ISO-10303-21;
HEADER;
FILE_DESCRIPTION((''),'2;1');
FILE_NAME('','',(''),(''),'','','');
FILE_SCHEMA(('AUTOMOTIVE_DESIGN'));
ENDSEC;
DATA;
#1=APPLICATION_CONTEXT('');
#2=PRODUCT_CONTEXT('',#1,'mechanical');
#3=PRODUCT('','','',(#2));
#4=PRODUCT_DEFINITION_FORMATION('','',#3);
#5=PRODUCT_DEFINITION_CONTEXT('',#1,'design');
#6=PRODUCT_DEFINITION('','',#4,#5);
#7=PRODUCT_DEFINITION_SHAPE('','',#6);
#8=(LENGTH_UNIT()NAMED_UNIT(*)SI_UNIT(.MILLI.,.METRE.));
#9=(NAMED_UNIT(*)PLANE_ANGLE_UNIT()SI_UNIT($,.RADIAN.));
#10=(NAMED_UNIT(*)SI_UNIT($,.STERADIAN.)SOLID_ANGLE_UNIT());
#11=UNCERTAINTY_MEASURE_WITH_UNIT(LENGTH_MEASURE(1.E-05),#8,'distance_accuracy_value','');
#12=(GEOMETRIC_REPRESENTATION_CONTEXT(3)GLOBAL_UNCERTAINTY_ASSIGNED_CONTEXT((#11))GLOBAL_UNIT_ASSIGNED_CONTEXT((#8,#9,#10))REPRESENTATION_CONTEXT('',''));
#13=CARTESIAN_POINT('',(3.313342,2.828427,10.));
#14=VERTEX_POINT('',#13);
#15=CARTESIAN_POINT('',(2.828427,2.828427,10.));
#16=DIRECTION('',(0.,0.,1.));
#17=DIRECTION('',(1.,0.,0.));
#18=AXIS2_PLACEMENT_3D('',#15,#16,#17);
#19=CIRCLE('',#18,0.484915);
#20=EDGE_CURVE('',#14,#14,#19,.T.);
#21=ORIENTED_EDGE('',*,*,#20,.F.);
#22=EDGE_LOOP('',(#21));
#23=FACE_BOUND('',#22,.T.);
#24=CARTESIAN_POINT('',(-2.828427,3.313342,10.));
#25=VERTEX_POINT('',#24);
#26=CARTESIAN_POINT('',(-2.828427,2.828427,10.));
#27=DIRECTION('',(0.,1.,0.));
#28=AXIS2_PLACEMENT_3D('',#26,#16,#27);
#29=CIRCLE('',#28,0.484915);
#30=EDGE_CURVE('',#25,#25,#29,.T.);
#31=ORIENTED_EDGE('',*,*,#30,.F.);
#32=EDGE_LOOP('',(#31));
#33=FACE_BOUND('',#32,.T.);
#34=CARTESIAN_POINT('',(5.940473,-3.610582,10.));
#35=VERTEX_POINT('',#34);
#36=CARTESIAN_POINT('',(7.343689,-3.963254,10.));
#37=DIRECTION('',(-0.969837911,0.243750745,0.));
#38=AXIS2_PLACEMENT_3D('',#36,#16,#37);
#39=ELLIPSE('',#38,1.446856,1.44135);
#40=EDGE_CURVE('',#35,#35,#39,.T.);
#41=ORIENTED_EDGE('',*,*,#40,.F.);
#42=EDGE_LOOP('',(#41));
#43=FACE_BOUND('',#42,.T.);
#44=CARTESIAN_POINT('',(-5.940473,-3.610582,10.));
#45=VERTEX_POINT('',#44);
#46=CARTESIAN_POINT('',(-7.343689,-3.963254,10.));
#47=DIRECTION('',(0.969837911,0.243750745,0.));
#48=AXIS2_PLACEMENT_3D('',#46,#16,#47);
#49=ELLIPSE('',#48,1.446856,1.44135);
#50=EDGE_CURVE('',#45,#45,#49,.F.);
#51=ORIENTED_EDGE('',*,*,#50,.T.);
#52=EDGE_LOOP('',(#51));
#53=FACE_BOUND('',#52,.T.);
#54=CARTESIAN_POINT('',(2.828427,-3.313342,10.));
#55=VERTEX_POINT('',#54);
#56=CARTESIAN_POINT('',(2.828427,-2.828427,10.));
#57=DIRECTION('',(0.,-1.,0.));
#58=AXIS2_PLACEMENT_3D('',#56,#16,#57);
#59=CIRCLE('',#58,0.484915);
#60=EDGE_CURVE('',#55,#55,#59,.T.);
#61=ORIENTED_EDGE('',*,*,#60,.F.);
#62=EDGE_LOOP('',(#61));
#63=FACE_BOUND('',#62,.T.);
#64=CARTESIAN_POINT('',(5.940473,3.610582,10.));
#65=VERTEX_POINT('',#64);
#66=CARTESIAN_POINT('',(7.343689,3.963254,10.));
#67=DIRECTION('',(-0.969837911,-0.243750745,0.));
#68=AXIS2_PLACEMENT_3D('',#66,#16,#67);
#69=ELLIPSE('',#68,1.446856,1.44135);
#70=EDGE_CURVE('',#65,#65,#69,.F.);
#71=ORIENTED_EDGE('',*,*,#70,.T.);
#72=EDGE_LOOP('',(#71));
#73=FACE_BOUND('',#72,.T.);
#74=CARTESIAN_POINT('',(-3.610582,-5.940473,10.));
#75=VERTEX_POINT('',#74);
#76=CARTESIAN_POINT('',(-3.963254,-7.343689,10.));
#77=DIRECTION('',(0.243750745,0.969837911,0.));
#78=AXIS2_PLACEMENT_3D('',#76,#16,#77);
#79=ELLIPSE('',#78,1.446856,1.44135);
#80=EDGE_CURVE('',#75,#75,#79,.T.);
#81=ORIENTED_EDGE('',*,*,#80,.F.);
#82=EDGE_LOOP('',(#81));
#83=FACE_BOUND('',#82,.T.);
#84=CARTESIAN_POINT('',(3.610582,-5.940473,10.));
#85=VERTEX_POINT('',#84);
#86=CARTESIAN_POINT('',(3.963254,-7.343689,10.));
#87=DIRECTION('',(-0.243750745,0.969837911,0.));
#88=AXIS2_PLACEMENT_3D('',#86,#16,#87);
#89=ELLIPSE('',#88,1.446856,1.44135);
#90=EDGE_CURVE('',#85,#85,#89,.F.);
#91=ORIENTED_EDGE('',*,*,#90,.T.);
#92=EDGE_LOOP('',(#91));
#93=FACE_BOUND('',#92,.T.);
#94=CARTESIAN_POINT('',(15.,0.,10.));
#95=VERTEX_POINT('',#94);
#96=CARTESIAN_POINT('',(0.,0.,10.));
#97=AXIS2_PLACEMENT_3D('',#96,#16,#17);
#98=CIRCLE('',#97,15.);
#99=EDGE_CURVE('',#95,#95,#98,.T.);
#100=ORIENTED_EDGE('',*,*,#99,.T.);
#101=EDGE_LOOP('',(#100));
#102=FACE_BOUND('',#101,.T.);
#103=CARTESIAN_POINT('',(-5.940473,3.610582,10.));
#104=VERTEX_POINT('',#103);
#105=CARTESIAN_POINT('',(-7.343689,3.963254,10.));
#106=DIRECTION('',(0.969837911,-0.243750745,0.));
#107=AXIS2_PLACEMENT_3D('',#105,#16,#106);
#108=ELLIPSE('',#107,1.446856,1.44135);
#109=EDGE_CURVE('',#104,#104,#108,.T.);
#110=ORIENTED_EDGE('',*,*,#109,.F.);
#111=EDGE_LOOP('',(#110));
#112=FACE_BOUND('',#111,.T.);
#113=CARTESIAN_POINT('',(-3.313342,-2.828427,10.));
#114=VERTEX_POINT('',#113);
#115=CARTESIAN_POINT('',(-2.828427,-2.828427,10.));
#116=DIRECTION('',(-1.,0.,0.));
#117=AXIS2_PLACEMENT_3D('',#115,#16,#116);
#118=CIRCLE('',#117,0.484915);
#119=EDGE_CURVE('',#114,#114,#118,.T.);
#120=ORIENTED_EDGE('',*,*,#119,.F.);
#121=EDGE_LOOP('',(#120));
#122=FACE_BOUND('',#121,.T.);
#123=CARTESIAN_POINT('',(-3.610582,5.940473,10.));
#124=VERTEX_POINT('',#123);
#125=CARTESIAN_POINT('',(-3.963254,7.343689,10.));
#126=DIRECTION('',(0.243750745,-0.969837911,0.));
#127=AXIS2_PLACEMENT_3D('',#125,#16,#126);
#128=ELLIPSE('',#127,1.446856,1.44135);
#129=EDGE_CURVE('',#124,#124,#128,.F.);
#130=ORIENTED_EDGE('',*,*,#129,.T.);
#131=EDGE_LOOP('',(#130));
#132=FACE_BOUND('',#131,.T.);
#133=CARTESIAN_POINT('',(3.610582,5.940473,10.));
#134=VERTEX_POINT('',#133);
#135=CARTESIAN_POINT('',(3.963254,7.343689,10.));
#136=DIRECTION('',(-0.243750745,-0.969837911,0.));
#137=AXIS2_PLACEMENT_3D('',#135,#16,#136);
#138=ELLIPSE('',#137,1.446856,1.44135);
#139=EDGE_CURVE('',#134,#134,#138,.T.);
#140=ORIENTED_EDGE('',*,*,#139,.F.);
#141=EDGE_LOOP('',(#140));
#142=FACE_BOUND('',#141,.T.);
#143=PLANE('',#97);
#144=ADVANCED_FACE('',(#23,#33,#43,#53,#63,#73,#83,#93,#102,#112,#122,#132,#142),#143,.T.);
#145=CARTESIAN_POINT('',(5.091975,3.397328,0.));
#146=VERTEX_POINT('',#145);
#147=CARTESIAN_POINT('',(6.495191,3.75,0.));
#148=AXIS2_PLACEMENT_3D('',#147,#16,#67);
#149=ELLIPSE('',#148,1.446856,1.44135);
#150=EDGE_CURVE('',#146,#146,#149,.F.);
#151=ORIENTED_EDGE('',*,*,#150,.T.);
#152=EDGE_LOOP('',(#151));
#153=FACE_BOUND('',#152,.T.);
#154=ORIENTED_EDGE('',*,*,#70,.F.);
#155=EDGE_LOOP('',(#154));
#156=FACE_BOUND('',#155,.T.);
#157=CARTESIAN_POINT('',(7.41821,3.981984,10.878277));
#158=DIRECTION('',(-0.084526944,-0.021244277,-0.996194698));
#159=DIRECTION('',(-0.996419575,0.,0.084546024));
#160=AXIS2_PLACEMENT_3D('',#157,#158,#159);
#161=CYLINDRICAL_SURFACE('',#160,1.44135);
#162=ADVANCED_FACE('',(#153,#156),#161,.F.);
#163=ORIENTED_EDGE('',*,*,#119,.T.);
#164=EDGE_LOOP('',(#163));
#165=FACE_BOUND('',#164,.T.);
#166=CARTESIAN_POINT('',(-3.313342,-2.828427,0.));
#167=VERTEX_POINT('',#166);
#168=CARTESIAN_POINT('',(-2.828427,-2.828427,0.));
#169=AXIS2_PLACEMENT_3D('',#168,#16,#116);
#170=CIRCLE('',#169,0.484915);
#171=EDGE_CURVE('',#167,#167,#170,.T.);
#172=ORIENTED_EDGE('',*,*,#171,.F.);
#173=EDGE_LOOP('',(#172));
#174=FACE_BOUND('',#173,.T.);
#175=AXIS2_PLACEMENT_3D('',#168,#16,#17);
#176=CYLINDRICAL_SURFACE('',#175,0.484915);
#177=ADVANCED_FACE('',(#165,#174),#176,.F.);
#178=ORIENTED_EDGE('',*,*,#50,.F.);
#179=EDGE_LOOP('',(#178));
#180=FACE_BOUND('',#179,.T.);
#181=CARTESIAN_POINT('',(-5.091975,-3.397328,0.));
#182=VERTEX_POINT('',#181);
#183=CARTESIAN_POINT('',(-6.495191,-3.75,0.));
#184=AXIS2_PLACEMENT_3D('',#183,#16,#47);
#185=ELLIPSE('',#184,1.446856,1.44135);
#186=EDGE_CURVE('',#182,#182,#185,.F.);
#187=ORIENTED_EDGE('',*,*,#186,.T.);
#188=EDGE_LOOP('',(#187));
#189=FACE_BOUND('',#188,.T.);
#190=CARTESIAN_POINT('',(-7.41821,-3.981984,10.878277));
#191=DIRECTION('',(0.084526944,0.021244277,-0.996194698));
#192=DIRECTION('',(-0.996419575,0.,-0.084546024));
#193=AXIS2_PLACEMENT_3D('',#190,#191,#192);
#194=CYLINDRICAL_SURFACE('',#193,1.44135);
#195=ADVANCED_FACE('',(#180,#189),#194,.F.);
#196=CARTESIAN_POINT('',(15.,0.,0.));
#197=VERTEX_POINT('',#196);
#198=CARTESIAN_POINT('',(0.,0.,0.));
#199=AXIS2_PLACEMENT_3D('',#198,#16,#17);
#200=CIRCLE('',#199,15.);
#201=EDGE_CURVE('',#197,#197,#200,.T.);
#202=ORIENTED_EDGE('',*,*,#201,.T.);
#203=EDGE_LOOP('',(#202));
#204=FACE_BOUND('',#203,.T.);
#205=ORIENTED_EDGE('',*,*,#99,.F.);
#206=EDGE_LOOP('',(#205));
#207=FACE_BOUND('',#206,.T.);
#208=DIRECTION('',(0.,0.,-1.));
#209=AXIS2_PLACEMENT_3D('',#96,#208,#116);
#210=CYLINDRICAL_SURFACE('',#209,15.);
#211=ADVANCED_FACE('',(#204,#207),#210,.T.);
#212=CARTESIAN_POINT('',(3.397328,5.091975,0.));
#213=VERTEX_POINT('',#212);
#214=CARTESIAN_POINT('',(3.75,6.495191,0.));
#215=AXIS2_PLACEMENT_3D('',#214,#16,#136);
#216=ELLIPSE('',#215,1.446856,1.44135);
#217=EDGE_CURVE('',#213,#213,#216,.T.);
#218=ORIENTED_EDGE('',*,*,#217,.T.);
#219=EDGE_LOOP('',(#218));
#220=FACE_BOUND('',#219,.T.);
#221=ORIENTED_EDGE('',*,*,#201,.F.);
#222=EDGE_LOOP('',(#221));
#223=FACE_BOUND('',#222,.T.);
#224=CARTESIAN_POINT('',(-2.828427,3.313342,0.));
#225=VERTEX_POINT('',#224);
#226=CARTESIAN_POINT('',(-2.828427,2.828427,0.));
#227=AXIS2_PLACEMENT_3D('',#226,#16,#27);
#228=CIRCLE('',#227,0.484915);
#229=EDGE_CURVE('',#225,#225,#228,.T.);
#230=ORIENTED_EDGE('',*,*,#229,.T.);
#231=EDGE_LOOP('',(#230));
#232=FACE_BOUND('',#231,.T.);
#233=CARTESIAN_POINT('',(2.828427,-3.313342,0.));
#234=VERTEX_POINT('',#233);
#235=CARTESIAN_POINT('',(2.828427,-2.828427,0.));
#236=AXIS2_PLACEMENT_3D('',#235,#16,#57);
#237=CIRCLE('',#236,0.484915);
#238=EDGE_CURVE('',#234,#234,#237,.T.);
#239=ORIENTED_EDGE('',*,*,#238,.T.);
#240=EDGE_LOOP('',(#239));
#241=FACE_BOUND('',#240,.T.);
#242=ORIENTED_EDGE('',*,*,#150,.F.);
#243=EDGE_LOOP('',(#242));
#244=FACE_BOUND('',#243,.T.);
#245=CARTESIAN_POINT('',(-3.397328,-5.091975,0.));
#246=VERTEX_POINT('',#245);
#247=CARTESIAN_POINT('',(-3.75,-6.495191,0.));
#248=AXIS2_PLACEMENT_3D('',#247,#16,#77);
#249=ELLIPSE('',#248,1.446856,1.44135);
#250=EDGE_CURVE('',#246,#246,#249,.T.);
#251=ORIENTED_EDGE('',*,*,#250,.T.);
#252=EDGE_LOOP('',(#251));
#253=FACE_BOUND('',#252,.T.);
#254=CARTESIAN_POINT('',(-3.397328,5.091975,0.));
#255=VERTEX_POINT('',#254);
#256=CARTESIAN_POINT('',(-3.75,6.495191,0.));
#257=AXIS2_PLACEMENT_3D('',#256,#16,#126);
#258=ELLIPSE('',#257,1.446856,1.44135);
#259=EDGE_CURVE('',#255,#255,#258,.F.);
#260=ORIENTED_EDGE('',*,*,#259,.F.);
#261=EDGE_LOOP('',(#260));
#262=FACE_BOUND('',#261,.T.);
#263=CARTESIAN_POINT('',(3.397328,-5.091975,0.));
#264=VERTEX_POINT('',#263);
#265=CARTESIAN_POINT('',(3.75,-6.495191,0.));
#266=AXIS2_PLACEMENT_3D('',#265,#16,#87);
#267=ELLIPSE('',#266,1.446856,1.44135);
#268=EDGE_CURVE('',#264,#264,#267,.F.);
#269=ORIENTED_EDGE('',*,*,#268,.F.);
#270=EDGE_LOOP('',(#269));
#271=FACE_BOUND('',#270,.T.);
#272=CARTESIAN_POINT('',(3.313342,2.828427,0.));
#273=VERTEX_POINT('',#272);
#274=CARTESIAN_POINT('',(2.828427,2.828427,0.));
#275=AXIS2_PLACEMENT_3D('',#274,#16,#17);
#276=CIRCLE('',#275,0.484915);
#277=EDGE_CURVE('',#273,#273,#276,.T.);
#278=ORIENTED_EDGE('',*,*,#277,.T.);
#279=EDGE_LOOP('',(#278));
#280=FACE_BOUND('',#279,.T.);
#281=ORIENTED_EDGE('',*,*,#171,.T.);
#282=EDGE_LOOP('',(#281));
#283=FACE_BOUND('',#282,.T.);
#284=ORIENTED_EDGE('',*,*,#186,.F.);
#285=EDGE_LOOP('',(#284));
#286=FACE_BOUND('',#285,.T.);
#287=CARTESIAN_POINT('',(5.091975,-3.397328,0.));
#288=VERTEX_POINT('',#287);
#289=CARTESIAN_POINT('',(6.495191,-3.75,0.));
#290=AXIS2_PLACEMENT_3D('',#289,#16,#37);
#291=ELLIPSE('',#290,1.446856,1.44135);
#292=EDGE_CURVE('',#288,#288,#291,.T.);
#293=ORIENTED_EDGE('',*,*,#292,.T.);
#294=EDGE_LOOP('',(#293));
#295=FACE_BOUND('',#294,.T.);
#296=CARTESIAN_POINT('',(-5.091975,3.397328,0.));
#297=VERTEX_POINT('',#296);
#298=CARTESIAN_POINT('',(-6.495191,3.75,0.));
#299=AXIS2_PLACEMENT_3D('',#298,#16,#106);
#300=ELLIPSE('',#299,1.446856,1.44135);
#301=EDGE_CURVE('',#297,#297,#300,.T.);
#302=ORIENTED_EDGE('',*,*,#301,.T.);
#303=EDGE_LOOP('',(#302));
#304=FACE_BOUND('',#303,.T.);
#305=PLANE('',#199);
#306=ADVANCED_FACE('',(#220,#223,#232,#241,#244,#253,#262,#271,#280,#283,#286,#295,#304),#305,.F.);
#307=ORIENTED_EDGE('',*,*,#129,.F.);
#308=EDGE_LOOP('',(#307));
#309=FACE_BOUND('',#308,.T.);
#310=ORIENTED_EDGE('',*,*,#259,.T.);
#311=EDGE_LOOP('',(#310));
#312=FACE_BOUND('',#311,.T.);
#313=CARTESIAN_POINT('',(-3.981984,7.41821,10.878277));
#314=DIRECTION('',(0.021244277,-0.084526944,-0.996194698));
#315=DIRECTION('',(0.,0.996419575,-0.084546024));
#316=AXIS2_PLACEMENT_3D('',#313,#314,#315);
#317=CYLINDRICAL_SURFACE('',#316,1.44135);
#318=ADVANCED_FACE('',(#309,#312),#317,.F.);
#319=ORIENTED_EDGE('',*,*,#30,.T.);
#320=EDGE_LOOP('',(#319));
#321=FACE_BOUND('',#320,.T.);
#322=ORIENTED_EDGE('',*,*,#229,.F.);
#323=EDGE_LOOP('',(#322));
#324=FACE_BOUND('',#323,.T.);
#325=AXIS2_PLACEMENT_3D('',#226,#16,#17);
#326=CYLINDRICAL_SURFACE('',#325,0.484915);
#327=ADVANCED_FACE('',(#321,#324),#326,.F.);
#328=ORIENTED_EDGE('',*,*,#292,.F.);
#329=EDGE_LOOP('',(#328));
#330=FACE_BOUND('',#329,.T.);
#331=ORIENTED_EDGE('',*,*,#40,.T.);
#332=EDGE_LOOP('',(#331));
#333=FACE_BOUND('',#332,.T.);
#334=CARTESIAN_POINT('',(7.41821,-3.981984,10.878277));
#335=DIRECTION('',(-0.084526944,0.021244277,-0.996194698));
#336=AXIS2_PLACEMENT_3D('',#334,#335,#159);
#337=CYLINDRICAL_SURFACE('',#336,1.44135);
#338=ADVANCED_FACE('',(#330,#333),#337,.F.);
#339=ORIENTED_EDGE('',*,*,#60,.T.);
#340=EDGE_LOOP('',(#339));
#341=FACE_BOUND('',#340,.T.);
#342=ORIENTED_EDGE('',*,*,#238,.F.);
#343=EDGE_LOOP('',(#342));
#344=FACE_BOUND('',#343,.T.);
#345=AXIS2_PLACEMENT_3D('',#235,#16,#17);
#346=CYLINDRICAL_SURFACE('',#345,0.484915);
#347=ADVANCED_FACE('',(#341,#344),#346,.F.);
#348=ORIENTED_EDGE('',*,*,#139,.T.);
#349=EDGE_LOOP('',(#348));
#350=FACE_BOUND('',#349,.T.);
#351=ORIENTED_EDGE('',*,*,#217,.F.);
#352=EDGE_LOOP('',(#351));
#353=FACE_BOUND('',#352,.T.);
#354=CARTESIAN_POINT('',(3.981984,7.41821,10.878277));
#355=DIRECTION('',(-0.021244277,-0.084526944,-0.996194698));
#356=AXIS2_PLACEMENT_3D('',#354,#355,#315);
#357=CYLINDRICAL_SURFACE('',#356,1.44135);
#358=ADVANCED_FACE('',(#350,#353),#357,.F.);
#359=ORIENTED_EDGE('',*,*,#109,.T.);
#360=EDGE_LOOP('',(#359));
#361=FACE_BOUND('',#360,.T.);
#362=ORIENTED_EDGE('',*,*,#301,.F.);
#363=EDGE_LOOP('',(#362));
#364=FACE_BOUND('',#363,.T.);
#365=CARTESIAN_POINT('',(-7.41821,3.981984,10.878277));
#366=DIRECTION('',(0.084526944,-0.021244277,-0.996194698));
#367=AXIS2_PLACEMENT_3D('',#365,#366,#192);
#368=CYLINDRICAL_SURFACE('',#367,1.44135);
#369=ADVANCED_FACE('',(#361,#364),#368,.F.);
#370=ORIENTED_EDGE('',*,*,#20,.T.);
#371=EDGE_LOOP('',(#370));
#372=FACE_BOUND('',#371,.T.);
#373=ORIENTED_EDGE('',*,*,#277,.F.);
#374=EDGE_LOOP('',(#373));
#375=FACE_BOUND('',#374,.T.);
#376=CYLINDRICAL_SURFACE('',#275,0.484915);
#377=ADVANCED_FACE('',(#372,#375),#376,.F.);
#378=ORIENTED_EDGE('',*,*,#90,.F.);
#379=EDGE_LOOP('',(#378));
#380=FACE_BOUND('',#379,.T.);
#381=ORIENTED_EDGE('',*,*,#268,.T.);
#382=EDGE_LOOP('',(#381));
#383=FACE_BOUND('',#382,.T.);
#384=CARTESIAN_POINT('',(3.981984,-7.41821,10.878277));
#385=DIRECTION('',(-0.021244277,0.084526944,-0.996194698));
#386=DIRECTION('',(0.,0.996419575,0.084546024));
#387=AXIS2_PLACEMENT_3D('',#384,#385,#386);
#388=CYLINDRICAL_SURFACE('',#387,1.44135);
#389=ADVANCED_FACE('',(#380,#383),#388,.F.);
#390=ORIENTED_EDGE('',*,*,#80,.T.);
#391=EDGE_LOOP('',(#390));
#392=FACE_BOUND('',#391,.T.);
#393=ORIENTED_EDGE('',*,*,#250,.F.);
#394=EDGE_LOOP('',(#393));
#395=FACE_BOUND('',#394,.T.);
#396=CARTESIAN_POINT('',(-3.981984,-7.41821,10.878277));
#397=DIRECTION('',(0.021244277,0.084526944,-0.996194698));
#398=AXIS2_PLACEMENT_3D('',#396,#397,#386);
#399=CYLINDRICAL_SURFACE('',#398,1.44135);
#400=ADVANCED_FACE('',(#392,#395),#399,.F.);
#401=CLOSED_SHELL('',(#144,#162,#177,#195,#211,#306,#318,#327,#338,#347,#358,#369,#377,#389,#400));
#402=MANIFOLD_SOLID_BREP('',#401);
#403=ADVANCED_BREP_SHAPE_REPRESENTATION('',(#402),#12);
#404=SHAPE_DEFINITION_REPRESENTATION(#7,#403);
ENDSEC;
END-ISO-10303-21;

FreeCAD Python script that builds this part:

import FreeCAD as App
import Part
import Sketcher

V = App.Vector

doc = App.newDocument("Part")
body = doc.addObject("PartDesign::Body", "Body")

# Sketch on XY plane
sketch1 = doc.addObject("Sketcher::SketchObject", "Sketch")
body.addObject(sketch1)
sketch1.AttachmentSupport = (doc.XY_Plane, [""])
sketch1.MapMode = "FlatFace"
sketch1.addGeometry(Part.Circle(V(0, 0, 0), V(0, 0, 1), 15), False)
sketch1.addConstraint([
    Sketcher.Constraint("Coincident", 0, 3, -1, 1),
    Sketcher.Constraint("Diameter", 0, 30.0),
])
pad1 = doc.addObject("PartDesign::Pad", "Pad")
body.addObject(pad1)
pad1.Profile = sketch1
pad1.Length = 10

# Sketch on XY plane
sketch2 = doc.addObject("Sketcher::SketchObject", "Sketch001")
body.addObject(sketch2)
sketch2.AttachmentSupport = (doc.XY_Plane, [""])
sketch2.MapMode = "FlatFace"
sketch2.AttachmentOffset = App.Placement(V(0, 0, 10), App.Rotation())
sketch2.addGeometry(Part.Circle(V(2.83, 2.83, 0), V(0, 0, 1), 0.48), False)
sketch2.addConstraint([
    Sketcher.Constraint("Diameter", 0, 0.96983),
    Sketcher.Constraint("DistanceX", -1, 1, 0, 3, 2.828427),
    Sketcher.Constraint("DistanceY", -1, 1, 0, 3, 2.828427),
])
pocket1 = doc.addObject("PartDesign::Pocket", "Pocket")
body.addObject(pocket1)
pocket1.Profile = sketch2
pocket1.Length = 10
doc.recompute()

polarpattern = doc.addObject("PartDesign::PolarPattern", "PolarPattern")
body.addObject(polarpattern)
polarpattern.Originals = [pocket1]
polarpattern.Axis = (doc.Z_Axis, [""])
polarpattern.Angle = 360
polarpattern.Occurrences = 4
body.Tip = polarpattern

# Sketch on an angled plane
sketch3 = doc.addObject("Sketcher::SketchObject", "Sketch002")
body.addObject(sketch3)
sketch3.Placement = App.Placement(V(-0.025288, 0.006356, 0.298028), App.Rotation(V(0.243750745, 0.969837911, 0), V(0.966147385, -0.2428232, 0.087155743), V(0.084526944, -0.021244277, -0.996194698), "ZXY"))
sketch3.addGeometry(Part.Circle(V(2.1, -7.2, 0), V(0, 0, 1), 1.4), False)
sketch3.addConstraint([
    Sketcher.Constraint("Diameter", 0, 2.8827),
    Sketcher.Constraint("DistanceY", 0, 3, -1, 1, 7.185898),
    Sketcher.Constraint("DistanceX", -1, 1, 0, 3, 2.053685),
])
pocket2 = doc.addObject("PartDesign::Pocket", "Pocket001")
body.addObject(pocket2)
pocket2.Profile = sketch3
pocket2.Length = 48.693821
pocket2.Midplane = True
doc.recompute()

datumplane = doc.addObject("PartDesign::Plane", "DatumPlane")
body.addObject(datumplane)
datumplane.Placement = App.Placement(V(0, 0, 0), App.Rotation(V(-0.707106781, 0.707106781, 0), V(0, 0, -1), V(-0.707106781, -0.707106781, 0), "ZXY"))
mirrored = doc.addObject("PartDesign::Mirrored", "Mirrored")
body.addObject(mirrored)
mirrored.Originals = [pocket2]
mirrored.MirrorPlane = (datumplane, [""])
body.Tip = mirrored
doc.recompute()

polarpattern2 = doc.addObject("PartDesign::PolarPattern", "PolarPattern001")
body.addObject(polarpattern2)
polarpattern2.Originals = [pocket2]
polarpattern2.Axis = (doc.Z_Axis, [""])
polarpattern2.Angle = 360
polarpattern2.Occurrences = 4
body.Tip = polarpattern2

# Sketch on an angled plane
sketch4 = doc.addObject("Sketcher::SketchObject", "Sketch003")
body.addObject(sketch4)
sketch4.Placement = App.Placement(V(0.025288, 0.006356, 0.298028), App.Rotation(V(-0.243750745, 0.969837911, 0), V(0.966147385, 0.2428232, -0.087155743), V(-0.084526944, -0.021244277, -0.996194698), "ZXY"))
sketch4.addGeometry(Part.Circle(V(2.1, 7.2, 0), V(0, 0, 1), 1.4), False)
sketch4.addConstraint([
    Sketcher.Constraint("Diameter", 0, 2.8827),
    Sketcher.Constraint("DistanceY", -1, 1, 0, 3, 7.185898),
    Sketcher.Constraint("DistanceX", -1, 1, 0, 3, 2.053685),
])
pocket3 = doc.addObject("PartDesign::Pocket", "Pocket002")
body.addObject(pocket3)
pocket3.Profile = sketch4
pocket3.Length = 48.693821
pocket3.Midplane = True

# Sketch on an angled plane
sketch5 = doc.addObject("Sketcher::SketchObject", "Sketch004")
body.addObject(sketch5)
sketch5.Placement = App.Placement(V(0.006356, -0.025288, 0.298028), App.Rotation(V(0.969837911, 0.243750745, 0), V(0.2428232, -0.966147385, -0.087155743), V(-0.021244277, 0.084526944, -0.996194698), "ZXY"))
sketch5.addGeometry(Part.Circle(V(2.1, 7.2, 0), V(0, 0, 1), 1.4), False)
sketch5.addConstraint([
    Sketcher.Constraint("Diameter", 0, 2.8827),
    Sketcher.Constraint("DistanceY", -1, 1, 0, 3, 7.185898),
    Sketcher.Constraint("DistanceX", -1, 1, 0, 3, 2.053685),
])
pocket4 = doc.addObject("PartDesign::Pocket", "Pocket003")
body.addObject(pocket4)
pocket4.Profile = sketch5
pocket4.Length = 48.693821
pocket4.Midplane = True

# Sketch on an angled plane
sketch6 = doc.addObject("Sketcher::SketchObject", "Sketch005")
body.addObject(sketch6)
sketch6.Placement = App.Placement(V(-0.025288, -0.006356, 0.298028), App.Rotation(V(0.243750745, -0.969837911, 0), V(-0.966147385, -0.2428232, -0.087155743), V(0.084526944, 0.021244277, -0.996194698), "ZXY"))
sketch6.addGeometry(Part.Circle(V(2.1, 7.2, 0), V(0, 0, 1), 1.4), False)
sketch6.addConstraint([
    Sketcher.Constraint("Diameter", 0, 2.8827),
    Sketcher.Constraint("DistanceY", -1, 1, 0, 3, 7.185898),
    Sketcher.Constraint("DistanceX", -1, 1, 0, 3, 2.053685),
])
pocket5 = doc.addObject("PartDesign::Pocket", "Pocket004")
body.addObject(pocket5)
pocket5.Profile = sketch6
pocket5.Length = 48.693821
pocket5.Midplane = True

doc.recompute()
